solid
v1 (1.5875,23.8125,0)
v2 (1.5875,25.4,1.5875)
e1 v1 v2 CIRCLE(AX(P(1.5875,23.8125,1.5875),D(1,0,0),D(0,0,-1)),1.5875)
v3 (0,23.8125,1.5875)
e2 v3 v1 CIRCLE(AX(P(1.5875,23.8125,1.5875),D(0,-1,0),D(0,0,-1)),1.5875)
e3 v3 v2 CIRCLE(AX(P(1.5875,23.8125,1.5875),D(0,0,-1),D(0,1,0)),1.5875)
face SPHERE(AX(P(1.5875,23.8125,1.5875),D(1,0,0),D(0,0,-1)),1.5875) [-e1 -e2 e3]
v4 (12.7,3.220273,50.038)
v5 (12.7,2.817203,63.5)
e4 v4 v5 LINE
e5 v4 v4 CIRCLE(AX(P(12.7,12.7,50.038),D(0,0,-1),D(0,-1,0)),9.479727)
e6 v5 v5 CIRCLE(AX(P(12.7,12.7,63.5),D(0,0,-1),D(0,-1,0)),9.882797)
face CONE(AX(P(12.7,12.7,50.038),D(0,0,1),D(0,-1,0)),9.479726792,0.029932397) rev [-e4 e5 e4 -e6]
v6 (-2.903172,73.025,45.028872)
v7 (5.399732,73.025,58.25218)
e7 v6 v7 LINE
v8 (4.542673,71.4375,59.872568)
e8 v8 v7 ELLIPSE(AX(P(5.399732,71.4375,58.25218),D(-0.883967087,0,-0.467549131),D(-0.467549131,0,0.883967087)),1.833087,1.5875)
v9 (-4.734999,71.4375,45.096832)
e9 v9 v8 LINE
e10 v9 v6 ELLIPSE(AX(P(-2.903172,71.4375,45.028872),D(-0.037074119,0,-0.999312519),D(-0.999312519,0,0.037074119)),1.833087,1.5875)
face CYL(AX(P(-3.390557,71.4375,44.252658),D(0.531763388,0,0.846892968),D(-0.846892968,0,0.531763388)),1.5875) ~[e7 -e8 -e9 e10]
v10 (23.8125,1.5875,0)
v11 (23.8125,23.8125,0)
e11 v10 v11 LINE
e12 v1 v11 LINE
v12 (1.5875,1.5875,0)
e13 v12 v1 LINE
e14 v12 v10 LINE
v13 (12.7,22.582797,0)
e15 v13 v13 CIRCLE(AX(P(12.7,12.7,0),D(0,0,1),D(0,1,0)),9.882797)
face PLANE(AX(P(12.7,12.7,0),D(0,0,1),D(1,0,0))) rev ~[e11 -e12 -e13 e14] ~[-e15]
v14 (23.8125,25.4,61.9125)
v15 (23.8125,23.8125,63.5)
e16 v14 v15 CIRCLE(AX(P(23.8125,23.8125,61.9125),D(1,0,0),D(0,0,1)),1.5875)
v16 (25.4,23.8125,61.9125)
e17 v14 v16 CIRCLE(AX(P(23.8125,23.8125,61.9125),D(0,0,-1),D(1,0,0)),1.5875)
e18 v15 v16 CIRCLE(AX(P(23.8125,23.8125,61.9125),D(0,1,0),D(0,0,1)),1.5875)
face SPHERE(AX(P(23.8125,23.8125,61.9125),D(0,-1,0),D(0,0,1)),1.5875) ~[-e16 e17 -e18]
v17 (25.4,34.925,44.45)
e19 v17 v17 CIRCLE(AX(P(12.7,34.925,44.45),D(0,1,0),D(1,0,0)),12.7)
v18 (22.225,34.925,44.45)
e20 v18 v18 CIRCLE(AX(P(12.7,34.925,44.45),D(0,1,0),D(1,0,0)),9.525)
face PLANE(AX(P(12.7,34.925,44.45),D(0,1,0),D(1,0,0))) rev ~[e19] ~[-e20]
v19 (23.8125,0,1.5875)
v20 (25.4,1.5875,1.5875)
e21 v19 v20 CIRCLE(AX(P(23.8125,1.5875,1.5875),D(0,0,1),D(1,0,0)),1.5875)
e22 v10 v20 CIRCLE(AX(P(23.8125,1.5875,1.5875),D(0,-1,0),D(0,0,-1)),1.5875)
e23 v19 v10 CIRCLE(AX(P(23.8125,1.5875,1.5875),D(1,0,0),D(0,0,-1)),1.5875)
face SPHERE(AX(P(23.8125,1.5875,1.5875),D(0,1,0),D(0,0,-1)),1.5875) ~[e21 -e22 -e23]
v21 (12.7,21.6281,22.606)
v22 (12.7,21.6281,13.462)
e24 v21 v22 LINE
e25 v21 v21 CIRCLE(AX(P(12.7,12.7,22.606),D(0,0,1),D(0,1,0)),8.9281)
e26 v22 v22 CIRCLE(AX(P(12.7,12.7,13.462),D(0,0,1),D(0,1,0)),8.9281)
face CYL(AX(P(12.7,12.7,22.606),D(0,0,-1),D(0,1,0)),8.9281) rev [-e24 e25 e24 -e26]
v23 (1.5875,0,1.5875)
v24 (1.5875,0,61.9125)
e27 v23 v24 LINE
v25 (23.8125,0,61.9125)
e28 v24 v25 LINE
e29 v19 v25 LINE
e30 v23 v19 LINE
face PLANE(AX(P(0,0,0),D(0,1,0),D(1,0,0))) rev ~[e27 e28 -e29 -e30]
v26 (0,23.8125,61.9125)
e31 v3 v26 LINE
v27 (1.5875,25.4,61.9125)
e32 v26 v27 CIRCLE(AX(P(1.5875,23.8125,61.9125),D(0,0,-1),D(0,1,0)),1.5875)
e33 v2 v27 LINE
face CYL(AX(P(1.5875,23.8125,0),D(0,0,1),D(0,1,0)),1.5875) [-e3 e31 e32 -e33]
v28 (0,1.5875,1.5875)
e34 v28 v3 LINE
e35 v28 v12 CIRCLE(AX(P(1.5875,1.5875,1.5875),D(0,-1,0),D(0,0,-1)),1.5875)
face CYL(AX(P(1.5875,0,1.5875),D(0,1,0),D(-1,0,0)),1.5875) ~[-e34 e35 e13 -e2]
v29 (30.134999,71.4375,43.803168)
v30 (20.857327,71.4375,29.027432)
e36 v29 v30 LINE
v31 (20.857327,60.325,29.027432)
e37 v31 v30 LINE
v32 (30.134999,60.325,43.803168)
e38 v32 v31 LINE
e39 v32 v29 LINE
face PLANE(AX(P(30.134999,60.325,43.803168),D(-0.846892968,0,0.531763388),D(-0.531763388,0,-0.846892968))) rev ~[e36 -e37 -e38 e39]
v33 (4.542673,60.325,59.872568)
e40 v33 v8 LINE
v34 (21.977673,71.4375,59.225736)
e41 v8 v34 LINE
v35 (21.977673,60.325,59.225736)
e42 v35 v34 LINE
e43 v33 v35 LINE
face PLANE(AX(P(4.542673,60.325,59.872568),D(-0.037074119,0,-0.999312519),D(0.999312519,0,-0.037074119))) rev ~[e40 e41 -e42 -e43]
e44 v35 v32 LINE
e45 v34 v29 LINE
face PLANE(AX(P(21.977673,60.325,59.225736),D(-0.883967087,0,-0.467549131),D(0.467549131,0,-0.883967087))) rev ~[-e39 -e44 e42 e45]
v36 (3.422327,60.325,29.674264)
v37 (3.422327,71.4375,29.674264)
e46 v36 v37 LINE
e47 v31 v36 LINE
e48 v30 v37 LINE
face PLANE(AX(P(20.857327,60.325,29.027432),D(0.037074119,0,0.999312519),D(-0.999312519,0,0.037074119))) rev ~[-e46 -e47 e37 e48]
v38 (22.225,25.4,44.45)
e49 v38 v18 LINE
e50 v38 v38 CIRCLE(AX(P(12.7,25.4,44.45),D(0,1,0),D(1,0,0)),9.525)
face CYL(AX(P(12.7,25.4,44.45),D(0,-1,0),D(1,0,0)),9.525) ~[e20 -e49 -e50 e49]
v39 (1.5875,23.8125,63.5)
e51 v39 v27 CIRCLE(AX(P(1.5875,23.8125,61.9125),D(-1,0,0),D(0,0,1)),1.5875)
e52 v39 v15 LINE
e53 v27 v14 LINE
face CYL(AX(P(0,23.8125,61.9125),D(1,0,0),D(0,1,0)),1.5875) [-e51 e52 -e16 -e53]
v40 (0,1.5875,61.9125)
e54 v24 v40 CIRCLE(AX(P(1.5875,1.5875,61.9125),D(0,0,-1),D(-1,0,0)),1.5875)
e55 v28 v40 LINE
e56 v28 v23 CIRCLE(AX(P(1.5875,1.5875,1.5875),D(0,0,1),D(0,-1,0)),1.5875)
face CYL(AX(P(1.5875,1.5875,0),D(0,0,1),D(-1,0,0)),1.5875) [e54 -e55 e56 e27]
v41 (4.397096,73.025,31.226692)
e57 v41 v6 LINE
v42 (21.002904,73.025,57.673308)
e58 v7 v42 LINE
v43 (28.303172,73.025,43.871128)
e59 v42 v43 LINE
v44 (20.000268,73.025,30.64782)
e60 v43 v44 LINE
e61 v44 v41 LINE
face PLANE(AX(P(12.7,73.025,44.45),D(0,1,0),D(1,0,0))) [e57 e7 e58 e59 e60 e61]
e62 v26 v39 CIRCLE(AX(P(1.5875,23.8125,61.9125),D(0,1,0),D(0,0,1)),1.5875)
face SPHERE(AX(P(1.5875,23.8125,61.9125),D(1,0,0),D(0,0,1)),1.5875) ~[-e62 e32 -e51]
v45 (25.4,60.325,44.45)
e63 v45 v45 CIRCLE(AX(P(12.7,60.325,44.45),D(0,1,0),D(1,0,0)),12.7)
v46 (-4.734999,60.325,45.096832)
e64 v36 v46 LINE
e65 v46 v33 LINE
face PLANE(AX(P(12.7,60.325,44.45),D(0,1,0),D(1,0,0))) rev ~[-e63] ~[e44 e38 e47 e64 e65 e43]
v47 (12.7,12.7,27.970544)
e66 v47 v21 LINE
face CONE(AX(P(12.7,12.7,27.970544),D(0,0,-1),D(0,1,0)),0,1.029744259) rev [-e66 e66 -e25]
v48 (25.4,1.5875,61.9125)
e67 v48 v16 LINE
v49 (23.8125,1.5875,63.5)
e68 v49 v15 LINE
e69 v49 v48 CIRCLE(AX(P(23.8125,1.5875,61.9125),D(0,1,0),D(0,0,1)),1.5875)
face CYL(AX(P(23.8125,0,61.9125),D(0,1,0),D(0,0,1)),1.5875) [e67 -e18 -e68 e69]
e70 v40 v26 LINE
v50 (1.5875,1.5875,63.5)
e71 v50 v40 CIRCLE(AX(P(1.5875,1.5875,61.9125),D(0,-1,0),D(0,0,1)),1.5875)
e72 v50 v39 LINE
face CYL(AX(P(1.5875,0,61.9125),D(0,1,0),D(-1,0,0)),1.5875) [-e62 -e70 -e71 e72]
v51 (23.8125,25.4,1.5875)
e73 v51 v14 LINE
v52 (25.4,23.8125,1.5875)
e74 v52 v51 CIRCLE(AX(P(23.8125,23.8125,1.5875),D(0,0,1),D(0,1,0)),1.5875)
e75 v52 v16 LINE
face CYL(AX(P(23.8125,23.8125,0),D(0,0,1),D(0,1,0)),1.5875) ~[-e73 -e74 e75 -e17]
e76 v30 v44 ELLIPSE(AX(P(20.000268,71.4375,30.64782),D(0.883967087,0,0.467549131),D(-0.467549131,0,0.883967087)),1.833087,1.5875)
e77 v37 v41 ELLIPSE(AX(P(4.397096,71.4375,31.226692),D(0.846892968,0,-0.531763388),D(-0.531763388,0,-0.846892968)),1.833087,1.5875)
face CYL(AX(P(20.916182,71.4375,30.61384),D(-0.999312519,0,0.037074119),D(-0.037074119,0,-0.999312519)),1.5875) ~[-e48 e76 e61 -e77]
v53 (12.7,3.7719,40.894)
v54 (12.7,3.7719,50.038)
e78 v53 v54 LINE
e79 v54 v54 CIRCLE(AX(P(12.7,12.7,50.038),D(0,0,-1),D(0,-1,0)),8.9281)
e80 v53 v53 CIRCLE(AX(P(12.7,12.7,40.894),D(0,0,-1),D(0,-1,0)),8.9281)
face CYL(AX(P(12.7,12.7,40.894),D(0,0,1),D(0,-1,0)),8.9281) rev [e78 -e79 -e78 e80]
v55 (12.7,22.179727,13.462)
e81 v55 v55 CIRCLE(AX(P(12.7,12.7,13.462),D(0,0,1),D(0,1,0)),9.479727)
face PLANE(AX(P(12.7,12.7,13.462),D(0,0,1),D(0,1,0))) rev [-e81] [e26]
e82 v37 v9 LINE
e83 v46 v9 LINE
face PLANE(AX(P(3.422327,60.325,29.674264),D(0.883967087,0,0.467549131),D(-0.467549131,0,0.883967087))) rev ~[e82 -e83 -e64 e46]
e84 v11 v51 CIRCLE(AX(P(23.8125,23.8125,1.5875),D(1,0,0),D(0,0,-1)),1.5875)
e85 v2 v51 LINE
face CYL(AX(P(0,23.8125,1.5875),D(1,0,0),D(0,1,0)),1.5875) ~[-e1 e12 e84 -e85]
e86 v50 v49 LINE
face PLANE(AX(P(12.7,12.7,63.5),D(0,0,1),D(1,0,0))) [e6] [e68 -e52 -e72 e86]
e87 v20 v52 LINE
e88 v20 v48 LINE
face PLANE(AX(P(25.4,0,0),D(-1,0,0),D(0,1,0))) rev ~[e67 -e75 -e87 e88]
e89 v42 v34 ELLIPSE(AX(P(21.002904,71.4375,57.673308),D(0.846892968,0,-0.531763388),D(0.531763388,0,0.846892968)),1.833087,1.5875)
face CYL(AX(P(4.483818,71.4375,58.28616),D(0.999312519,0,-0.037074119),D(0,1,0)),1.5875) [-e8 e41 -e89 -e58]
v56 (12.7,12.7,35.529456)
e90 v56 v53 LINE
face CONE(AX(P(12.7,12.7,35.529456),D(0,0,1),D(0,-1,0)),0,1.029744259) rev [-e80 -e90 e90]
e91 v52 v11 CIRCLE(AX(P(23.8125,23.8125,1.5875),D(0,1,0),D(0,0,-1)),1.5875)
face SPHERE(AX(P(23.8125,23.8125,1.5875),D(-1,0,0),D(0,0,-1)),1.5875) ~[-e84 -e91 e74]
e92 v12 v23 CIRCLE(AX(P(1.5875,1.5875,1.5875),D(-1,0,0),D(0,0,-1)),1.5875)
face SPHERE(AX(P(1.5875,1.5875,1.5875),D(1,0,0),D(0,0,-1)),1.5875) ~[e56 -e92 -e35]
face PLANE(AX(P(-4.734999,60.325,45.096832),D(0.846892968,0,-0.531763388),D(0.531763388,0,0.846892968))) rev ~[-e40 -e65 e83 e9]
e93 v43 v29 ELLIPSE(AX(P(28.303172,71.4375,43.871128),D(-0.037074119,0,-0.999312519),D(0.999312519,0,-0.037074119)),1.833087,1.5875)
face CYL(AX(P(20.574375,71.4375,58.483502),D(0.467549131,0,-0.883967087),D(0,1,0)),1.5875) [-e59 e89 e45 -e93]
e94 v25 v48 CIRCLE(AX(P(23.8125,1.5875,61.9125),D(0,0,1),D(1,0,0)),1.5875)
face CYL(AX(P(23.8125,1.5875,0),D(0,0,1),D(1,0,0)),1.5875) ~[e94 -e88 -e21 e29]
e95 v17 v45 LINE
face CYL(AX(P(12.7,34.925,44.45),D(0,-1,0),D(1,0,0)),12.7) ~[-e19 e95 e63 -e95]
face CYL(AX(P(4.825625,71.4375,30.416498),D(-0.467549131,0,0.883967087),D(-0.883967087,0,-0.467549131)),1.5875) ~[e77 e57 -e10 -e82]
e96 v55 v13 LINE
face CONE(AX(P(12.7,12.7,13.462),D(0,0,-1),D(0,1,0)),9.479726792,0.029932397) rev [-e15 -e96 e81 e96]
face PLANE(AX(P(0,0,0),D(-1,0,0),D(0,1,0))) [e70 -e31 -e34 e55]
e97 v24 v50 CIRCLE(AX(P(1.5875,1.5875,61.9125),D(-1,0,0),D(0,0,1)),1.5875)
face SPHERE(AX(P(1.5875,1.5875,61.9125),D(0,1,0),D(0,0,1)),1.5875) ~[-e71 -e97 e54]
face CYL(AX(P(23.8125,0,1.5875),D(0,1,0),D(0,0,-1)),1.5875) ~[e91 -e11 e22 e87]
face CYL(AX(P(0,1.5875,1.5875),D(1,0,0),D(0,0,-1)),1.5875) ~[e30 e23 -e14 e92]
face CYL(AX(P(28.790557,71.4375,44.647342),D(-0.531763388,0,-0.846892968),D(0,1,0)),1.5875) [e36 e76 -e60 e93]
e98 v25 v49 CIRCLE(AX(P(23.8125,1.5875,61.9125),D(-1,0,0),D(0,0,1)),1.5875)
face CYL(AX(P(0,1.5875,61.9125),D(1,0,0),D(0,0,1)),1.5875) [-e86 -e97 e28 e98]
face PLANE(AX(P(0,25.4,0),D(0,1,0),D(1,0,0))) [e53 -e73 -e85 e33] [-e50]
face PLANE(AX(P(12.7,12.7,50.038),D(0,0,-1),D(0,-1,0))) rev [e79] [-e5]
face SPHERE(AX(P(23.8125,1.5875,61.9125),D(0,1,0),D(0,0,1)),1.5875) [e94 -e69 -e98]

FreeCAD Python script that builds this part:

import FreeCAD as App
import Part
import Sketcher
from FreeCAD import Vector
Q = App.Units.Quantity


def edges_at(feature, points):
    """Names of the edges that pass closest to the given points."""
    edges = feature.Shape.Edges
    near = lambda p: min(range(len(edges)), key=lambda i: edges[i].distToShape(Part.Vertex(*p))[0])
    return sorted({f"Edge{near(p) + 1}" for p in points})


def add_polygon(sketch, points):
    """Adds a closed chain of lines whose ends are joined by coincident constraints."""
    first, n = sketch.GeometryCount, len(points)
    for a, b in zip(points, points[1:] + points[:1]):
        sketch.addGeometry(Part.LineSegment(App.Vector(*a, 0), App.Vector(*b, 0)), False)
    for i in range(n):
        sketch.addConstraint(Sketcher.Constraint("Coincident", first + i, 2, first + (i + 1) % n, 1))

doc = App.newDocument("Part")
body = doc.addObject("PartDesign::Body", "Body")

sketch1 = doc.addObject("Sketcher::SketchObject", "Sketch")
body.addObject(sketch1)
sketch1.AttachmentSupport = (doc.XY_Plane, [""])
sketch1.MapMode = "FlatFace"
add_polygon(sketch1, [(0, 25), (0, 0), (25, 0), (25, 25)])
sketch1.addConstraint(Sketcher.Constraint("Vertical", 0))
sketch1.addConstraint(Sketcher.Constraint("Horizontal", 1))
sketch1.addConstraint(Sketcher.Constraint("Vertical", 2))
sketch1.addConstraint(Sketcher.Constraint("Horizontal", 3))
sketch1.addConstraint(Sketcher.Constraint("Coincident", 0, 2, -1, 1))
sketch1.addConstraint(Sketcher.Constraint("Equal", 3, 0))
sketch1.addConstraint(Sketcher.Constraint("DistanceX", 1, 1, 1, 2, Q("1 in")))
pad1 = doc.addObject("PartDesign::Pad", "Pad")
body.addObject(pad1)
pad1.Profile = sketch1
pad1.Length = Q("2.5 in")

sketch2 = doc.addObject("Sketcher::SketchObject", "Sketch001")
body.addObject(sketch2)
sketch2.AttachmentSupport = (doc.YZ_Plane, [""])
sketch2.MapMode = "FlatFace"
sketch2.AttachmentOffset = App.Placement(Vector(0, 0, 0.5 * 25.4), App.Rotation())
add_polygon(sketch2, [(12.7, 35.5), (12.7, 63.5), (2.8, 63.5), (3.2, 50), (3.8, 50), (3.8, 40.9)])
sketch2.addGeometry(Part.LineSegment(Vector(12.7, 63.5, 0), Vector(12.7, 35.5, 0)), True)
sketch2.addConstraint(Sketcher.Constraint("Vertical", 0))
sketch2.addConstraint(Sketcher.Constraint("Horizontal", 1))
sketch2.addConstraint(Sketcher.Constraint("Horizontal", 3))
sketch2.addConstraint(Sketcher.Constraint("Vertical", 4))
sketch2.addConstraint(Sketcher.Constraint("Vertical", 6))
sketch2.addConstraint(Sketcher.Constraint("Coincident", 6, 1, 0, 2))
sketch2.addConstraint(Sketcher.Constraint("Equal", 0, 6))
sketch2.addConstraint(Sketcher.Constraint("Angle", 5, Q("-31 deg")))
sketch2.addConstraint(Sketcher.Constraint("DistanceY", 4, 2, 4, 1, Q("0.36 in")))
sketch2.addConstraint(Sketcher.Constraint("DistanceX", -1, 1, 0, 2, Q("0.5 in")))
sketch2.addConstraint(Sketcher.Constraint("DistanceY", -1, 1, 0, 2, Q("2.5 in")))
sketch2.addConstraint(Sketcher.Constraint("DistanceY", -1, 1, 2, 2, Q("1.97 in")))
sketch2.addConstraint(Sketcher.Constraint("DistanceX", -1, 1, 3, 2, Q("0.1485 in")))
sketch2.addConstraint(Sketcher.Constraint("DistanceX", 1, 2, 1, 1, Q("9.882797 mm")))
sketch2.addConstraint(Sketcher.Constraint("DistanceX", 3, 1, 3, 2, Q("0.551627 mm")))
groove = doc.addObject("PartDesign::Groove", "Groove")
body.addObject(groove)
groove.Profile = sketch2
groove.ReferenceAxis = (sketch2, ["Axis0"])
groove.Angle = 360

sketch3 = doc.addObject("Sketcher::SketchObject", "Sketch002")
body.addObject(sketch3)
sketch3.AttachmentSupport = (doc.XZ_Plane, [""])
sketch3.MapMode = "FlatFace"
sketch3.AttachmentOffset = App.Placement(Vector(0, 0, -1 * 25.4), App.Rotation())
sketch3.addGeometry(Part.Circle(Vector(13, 44, 0), Vector(0, 0, 1), 10), False)
sketch3.addConstraint(Sketcher.Constraint("Diameter", 0, Q("0.75 in")))
sketch3.addConstraint(Sketcher.Constraint("DistanceX", -1, 1, 0, 3, Q("0.5 in")))
sketch3.addConstraint(Sketcher.Constraint("DistanceY", -1, 1, 0, 3, Q("1.75 in")))
pad2 = doc.addObject("PartDesign::Pad", "Pad001")
body.addObject(pad2)
pad2.Profile = sketch3
pad2.Length = Q("0.375 in")
pad2.Reversed = True

sketch4 = doc.addObject("Sketcher::SketchObject", "Sketch003")
body.addObject(sketch4)
sketch4.AttachmentSupport = (doc.XZ_Plane, [""])
sketch4.MapMode = "FlatFace"
sketch4.AttachmentOffset = App.Placement(Vector(0, 0, -1.375 * 25.4), App.Rotation())
sketch4.addGeometry(Part.Circle(Vector(13, 44, 0), Vector(0, 0, 1), 13), False)
sketch4.addConstraint(Sketcher.Constraint("Diameter", 0, Q("1 in")))
sketch4.addConstraint(Sketcher.Constraint("DistanceX", -1, 1, 0, 3, Q("0.5 in")))
sketch4.addConstraint(Sketcher.Constraint("DistanceY", -1, 1, 0, 3, Q("1.75 in")))
pad3 = doc.addObject("PartDesign::Pad", "Pad002")
body.addObject(pad3)
pad3.Profile = sketch4
pad3.Length = Q("1 in")
pad3.Reversed = True

sketch5 = doc.addObject("Sketcher::SketchObject", "Sketch004")
body.addObject(sketch5)
sketch5.AttachmentSupport = (doc.XZ_Plane, [""])
sketch5.MapMode = "FlatFace"
sketch5.AttachmentOffset = App.Placement(Vector(0, 0, -2.375 * 25.4), App.Rotation())
add_polygon(sketch5, [(3, 30), (-5, 45), (5, 60), (22, 59), (30, 44), (21, 29)])
sketch5.addConstraint(Sketcher.Constraint("Parallel", 0, 3))
sketch5.addConstraint(Sketcher.Constraint("Parallel", 1, 4))
sketch5.addConstraint(Sketcher.Constraint("Parallel", 2, 5))
sketch5.addConstraint(Sketcher.Constraint("Equal", 0, 1))
sketch5.addConstraint(Sketcher.Constraint("Equal", 1, 2))
sketch5.addConstraint(Sketcher.Constraint("Equal", 2, 3))
sketch5.addConstraint(Sketcher.Constraint("DistanceX", 0, 2, -1, 1, Q("4.734999 mm")))
sketch5.addConstraint(Sketcher.Constraint("DistanceX", -1, 1, 3, 2, Q("30.134999 mm")))
sketch5.addConstraint(Sketcher.Constraint("DistanceX", 1, 2, 2, 2, Q("17.434999 mm")))
sketch5.addConstraint(Sketcher.Constraint("DistanceY", 3, 2, 1, 2, Q("16.0694 mm")))
sketch5.addConstraint(Sketcher.Constraint("DistanceY", -1, 1, 0, 2, Q("45.096832 mm")))
sketch5.addConstraint(Sketcher.Constraint("DistanceY", -1, 1, 1, 2, Q("59.872568 mm")))
pad4 = doc.addObject("PartDesign::Pad", "Pad003")
body.addObject(pad4)
pad4.Profile = sketch5
pad4.Length = Q("0.5 in")
pad4.Reversed = True

sketch6 = doc.addObject("Sketcher::SketchObject", "Sketch005")
body.addObject(sketch6)
sketch6.AttachmentSupport = (doc.YZ_Plane, [""])
sketch6.MapMode = "FlatFace"
sketch6.AttachmentOffset = App.Placement(Vector(0, 0, 0.5 * 25.4), App.Rotation())
add_polygon(sketch6, [(12.7, 28), (12.7, 0), (22.6, 0), (22.2, 13.5), (21.6, 13.5), (21.6, 22.6)])
sketch6.addGeometry(Part.LineSegment(Vector(12.7, 0, 0), Vector(12.7, 28, 0)), True)
sketch6.addConstraint(Sketcher.Constraint("Vertical", 0))
sketch6.addConstraint(Sketcher.Constraint("Horizontal", 1))
sketch6.addConstraint(Sketcher.Constraint("Horizontal", 3))
sketch6.addConstraint(Sketcher.Constraint("Vertical", 4))
sketch6.addConstraint(Sketcher.Constraint("Vertical", 6))
sketch6.addConstraint(Sketcher.Constraint("Coincident", 6, 1, 0, 2))
sketch6.addConstraint(Sketcher.Constraint("PointOnObject", 0, 2, -1))
sketch6.addConstraint(Sketcher.Constraint("Equal", 0, 6))
sketch6.addConstraint(Sketcher.Constraint("Angle", 5, Q("149 deg")))
sketch6.addConstraint(Sketcher.Constraint("DistanceY", 4, 1, 4, 2, Q("0.36 in")))
sketch6.addConstraint(Sketcher.Constraint("DistanceX", -1, 1, 0, 2, Q("0.5 in")))
sketch6.addConstraint(Sketcher.Constraint("DistanceY", -1, 1, 2, 2, Q("0.53 in")))
sketch6.addConstraint(Sketcher.Constraint("DistanceX", -1, 1, 3, 2, Q("0.8515 in")))
sketch6.addConstraint(Sketcher.Constraint("DistanceX", 1, 1, 1, 2, Q("9.882797 mm")))
sketch6.addConstraint(Sketcher.Constraint("DistanceX", 3, 2, 3, 1, Q("0.551627 mm")))
groove2 = doc.addObject("PartDesign::Groove", "Groove001")
body.addObject(groove2)
groove2.Profile = sketch6
groove2.ReferenceAxis = (sketch6, ["Axis0"])
groove2.Angle = 360
doc.recompute()

fillet = doc.addObject("PartDesign::Fillet", "Fillet")
body.addObject(fillet)
fillet.Base = (groove2, edges_at(groove2, [
    (25.4, 12.7, 63.5),
    (12.7, 25.4, 63.5),
    (12.14, 73.025, 29.351),
    (-0.656, 73.025, 37.386),
    (-0.096, 73.025, 52.485),
    (13.26, 73.025, 59.549),
    (26.056, 73.025, 51.514),
    (25.496, 73.025, 36.415),
    (0, 12.7, 63.5),
    (12.7, 25.4, 0),
    (25.4, 12.7, 0),
    (12.7, 0, 0),
    (0, 12.7, 0),
    (12.7, 0, 63.5),
    (0, 25.4, 31.75),
    (25.4, 25.4, 31.75),
    (25.4, 0, 31.75),
    (0, 0, 31.75),
]))
fillet.Radius = Q("0.0625 in")

doc.recompute()
